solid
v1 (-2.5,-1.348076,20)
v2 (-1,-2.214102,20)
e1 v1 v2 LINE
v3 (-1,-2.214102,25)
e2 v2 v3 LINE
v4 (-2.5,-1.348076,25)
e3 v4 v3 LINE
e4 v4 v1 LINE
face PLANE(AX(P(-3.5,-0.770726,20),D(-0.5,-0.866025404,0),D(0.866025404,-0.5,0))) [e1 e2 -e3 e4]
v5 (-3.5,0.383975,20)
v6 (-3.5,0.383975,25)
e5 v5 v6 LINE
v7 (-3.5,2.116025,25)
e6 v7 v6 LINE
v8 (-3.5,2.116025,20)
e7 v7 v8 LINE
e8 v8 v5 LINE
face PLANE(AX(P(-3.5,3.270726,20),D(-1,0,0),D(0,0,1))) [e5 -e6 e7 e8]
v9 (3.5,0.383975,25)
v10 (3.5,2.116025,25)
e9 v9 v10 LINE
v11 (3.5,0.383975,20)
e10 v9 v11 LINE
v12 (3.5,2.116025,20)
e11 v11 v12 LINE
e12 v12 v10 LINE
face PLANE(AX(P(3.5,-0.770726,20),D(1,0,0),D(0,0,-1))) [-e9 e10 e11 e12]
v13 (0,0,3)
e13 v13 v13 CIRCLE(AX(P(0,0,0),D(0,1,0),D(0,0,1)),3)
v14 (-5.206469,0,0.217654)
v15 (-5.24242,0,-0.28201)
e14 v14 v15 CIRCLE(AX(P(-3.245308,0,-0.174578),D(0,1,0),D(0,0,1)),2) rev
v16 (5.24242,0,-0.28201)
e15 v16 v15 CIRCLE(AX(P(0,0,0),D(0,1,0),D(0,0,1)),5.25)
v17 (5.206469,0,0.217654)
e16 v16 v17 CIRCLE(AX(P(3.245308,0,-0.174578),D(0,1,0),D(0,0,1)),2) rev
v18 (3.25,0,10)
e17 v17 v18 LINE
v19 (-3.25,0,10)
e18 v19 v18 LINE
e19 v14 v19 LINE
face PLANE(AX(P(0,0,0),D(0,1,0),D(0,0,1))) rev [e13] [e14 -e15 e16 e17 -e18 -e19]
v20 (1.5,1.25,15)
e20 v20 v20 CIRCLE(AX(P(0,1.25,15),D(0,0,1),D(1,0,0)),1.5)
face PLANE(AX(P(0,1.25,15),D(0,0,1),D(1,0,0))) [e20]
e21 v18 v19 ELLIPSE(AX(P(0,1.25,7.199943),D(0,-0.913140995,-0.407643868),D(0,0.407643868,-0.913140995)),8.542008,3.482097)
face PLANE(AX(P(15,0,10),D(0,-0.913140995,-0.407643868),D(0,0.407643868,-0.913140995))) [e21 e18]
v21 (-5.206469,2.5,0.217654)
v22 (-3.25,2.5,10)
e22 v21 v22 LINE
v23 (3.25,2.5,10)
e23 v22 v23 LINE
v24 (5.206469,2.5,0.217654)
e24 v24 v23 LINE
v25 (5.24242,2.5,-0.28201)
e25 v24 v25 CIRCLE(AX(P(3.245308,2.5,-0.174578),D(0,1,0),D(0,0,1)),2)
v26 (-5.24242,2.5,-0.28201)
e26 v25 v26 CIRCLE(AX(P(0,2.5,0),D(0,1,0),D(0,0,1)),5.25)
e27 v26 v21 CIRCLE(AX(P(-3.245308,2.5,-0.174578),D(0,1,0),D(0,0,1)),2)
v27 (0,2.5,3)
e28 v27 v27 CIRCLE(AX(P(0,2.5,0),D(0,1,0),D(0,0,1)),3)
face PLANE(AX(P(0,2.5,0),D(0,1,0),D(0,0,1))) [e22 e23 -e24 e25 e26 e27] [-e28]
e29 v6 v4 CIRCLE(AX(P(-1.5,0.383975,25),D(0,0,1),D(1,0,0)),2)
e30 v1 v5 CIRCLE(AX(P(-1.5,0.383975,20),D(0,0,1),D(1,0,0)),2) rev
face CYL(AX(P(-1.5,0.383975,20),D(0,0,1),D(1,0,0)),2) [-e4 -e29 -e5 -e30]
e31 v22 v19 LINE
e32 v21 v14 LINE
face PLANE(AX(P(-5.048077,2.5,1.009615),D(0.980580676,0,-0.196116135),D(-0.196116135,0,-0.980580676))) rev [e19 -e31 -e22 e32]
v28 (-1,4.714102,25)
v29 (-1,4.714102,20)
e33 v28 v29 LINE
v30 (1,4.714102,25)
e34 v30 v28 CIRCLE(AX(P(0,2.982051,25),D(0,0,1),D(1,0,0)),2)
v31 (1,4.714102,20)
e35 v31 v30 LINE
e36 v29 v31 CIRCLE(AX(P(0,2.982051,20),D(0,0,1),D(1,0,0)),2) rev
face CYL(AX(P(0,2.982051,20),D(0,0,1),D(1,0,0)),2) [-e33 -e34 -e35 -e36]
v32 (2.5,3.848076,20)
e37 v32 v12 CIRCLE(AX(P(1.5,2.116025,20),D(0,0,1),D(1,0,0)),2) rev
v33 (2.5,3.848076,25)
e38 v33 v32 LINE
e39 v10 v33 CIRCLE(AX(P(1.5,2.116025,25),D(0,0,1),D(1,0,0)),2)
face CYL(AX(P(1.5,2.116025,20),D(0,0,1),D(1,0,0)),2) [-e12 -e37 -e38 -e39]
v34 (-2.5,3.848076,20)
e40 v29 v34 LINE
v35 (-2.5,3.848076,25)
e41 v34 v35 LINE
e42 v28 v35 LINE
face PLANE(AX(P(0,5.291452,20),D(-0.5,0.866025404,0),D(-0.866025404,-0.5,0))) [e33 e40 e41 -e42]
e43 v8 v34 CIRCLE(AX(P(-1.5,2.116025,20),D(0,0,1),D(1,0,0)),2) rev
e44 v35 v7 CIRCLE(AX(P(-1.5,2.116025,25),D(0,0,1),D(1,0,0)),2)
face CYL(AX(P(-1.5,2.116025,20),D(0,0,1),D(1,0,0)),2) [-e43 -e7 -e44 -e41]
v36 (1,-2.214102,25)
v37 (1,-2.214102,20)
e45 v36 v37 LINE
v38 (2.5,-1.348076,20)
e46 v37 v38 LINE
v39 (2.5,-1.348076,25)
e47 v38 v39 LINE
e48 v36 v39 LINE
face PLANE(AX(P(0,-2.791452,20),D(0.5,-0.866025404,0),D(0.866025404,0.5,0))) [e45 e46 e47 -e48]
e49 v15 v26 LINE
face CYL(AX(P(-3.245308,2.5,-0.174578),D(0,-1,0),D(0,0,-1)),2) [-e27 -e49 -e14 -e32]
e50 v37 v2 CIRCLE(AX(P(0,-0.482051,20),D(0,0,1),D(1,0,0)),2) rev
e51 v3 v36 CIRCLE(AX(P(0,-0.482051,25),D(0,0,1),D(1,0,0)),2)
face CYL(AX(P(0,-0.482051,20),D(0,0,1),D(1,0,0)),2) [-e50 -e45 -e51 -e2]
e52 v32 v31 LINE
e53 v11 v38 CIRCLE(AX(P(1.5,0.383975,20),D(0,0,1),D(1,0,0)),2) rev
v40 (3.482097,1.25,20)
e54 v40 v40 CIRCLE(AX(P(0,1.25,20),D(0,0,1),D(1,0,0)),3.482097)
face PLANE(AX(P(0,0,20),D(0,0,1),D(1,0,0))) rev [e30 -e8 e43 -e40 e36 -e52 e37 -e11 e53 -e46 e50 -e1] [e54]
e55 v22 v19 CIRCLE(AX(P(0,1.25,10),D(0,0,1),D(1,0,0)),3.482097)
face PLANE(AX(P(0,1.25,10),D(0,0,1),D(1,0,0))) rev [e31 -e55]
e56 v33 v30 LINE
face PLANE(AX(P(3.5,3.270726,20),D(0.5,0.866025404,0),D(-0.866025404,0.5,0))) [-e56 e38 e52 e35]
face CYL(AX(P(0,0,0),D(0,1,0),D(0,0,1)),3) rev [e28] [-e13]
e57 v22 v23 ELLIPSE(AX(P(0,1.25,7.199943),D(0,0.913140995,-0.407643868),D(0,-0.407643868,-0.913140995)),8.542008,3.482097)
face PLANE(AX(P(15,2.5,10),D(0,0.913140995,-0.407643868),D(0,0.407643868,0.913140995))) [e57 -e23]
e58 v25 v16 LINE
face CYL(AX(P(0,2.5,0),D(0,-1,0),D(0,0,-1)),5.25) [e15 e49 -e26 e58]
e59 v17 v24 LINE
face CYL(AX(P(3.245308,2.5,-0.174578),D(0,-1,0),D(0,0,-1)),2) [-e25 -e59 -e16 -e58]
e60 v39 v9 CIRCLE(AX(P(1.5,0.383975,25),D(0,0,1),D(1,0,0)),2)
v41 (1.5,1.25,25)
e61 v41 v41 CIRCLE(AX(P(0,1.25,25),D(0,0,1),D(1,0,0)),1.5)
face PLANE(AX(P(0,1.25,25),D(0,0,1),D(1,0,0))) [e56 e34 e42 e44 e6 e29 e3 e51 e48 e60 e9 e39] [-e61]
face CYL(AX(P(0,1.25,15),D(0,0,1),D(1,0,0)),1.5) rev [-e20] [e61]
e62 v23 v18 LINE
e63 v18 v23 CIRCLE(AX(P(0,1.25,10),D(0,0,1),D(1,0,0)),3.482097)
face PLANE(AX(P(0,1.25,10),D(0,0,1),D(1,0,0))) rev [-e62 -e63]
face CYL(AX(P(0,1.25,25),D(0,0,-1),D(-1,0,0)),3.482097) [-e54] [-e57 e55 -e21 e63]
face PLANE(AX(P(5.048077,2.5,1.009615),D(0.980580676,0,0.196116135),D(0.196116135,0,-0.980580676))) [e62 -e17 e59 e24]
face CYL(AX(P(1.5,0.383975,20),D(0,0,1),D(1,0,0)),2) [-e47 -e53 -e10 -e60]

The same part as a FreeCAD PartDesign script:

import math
import FreeCAD as App
import Part
import Sketcher
from FreeCAD import Vector
Q = App.Units.Quantity


def edges_at(feature, points):
    """Names of the edges that pass closest to the given points."""
    edges = feature.Shape.Edges
    near = lambda p: min(range(len(edges)), key=lambda i: edges[i].distToShape(Part.Vertex(*p))[0])
    return sorted({f"Edge{near(p) + 1}" for p in points})

doc = App.newDocument("Part")
body = doc.addObject("PartDesign::Body", "Body")

sketch1 = body.newObject("Sketcher::SketchObject", "Sketch")
sketch1.AttachmentSupport = (doc.getObject("XZ_Plane"), [""])
sketch1.MapMode = "FlatFace"
sketch1.addGeometry(Part.ArcOfCircle(Part.Circle(Vector(0, 0, 0), Vector(0, 0, 1), 5), math.radians(180), math.radians(360)), False)
sketch1.addGeometry(Part.LineSegment(Vector(-5, 0, 0), Vector(-3, 10, 0)), False)
sketch1.addGeometry(Part.LineSegment(Vector(-3, 10, 0), Vector(3, 10, 0)), False)
sketch1.addGeometry(Part.LineSegment(Vector(3, 10, 0), Vector(5, 0, 0)), False)
sketch1.addConstraint(Sketcher.Constraint("Coincident", 0, 1, 1, 1))
sketch1.addConstraint(Sketcher.Constraint("Coincident", 1, 2, 2, 1))
sketch1.addConstraint(Sketcher.Constraint("Coincident", 2, 2, 3, 1))
sketch1.addConstraint(Sketcher.Constraint("Coincident", 3, 2, 0, 2))
sketch1.addConstraint(Sketcher.Constraint("Horizontal", 2))
sketch1.addConstraint(Sketcher.Constraint("Coincident", 0, 3, -1, 1))
sketch1.addConstraint(Sketcher.Constraint("PointOnObject", 0, 1, -1))
sketch1.addConstraint(Sketcher.Constraint("PointOnObject", 3, 2, -1))
sketch1.addConstraint(Sketcher.Constraint("Equal", 1, 3))
sketch1.addConstraint(Sketcher.Constraint("Radius", 0, Q("5.25 mm")))
sketch1.addConstraint(Sketcher.Constraint("DistanceX", 2, 1, 2, 2, Q("6.5 mm")))
sketch1.addConstraint(Sketcher.Constraint("DistanceY", -1, 1, 1, 2, Q("10 mm")))
pad1 = body.newObject("PartDesign::Pad", "Pad")
pad1.Profile = sketch1
pad1.Length = 2.5
pad1.Reversed = True

sketch2 = body.newObject("Sketcher::SketchObject", "Sketch001")
sketch2.AttachmentSupport = (doc.getObject("XZ_Plane"), [""])
sketch2.MapMode = "FlatFace"
sketch2.AttachmentOffset = App.Placement(Vector(0, 0, -2.5), App.Rotation())
sketch2.addGeometry(Part.Circle(Vector(0, 0, 0), Vector(0, 0, 1), 3), False)
sketch2.addConstraint(Sketcher.Constraint("Coincident", 0, 3, -1, 1))
sketch2.addConstraint(Sketcher.Constraint("Diameter", 0, Q("6 mm")))
pocket1 = body.newObject("PartDesign::Pocket", "Pocket")
pocket1.Profile = sketch2
pocket1.Length = 2.5
pocket1.Reversed = True
doc.recompute()

fillet = body.newObject("PartDesign::Fillet", "Fillet")
fillet.Base = (pocket1, edges_at(pocket1, [(-5.25, 1.25, 0), (5.25, 1.25, 0)]))
fillet.Radius = 2

sketch3 = body.newObject("Sketcher::SketchObject", "Sketch002")
sketch3.AttachmentSupport = (doc.getObject("XY_Plane"), [""])
sketch3.MapMode = "FlatFace"
sketch3.AttachmentOffset = App.Placement(Vector(0, 0, 10), App.Rotation())
sketch3.addGeometry(Part.Circle(Vector(0, 1.2, 0), Vector(0, 0, 1), 3.5), False)
sketch3.addConstraint(Sketcher.Constraint("PointOnObject", 0, 3, -2))
sketch3.addConstraint(Sketcher.Constraint("DistanceY", -1, 1, 0, 3, Q("1.25 mm")))
sketch3.addConstraint(Sketcher.Constraint("Diameter", 0, Q("6.964194 mm")))
pad2 = body.newObject("PartDesign::Pad", "Pad001")
pad2.Profile = sketch3
pad2.Length = 15

sketch4 = body.newObject("Sketcher::SketchObject", "Sketch003")
sketch4.AttachmentSupport = (doc.getObject("YZ_Plane"), [""])
sketch4.MapMode = "FlatFace"
sketch4.addGeometry(Part.LineSegment(Vector(4.7, 15, 0), Vector(2.5, 10, 0)), False)
sketch4.addGeometry(Part.LineSegment(Vector(2.5, 10, 0), Vector(4.7, 10, 0)), False)
sketch4.addGeometry(Part.LineSegment(Vector(4.7, 10, 0), Vector(4.7, 15, 0)), False)
sketch4.addGeometry(Part.LineSegment(Vector(0, 10, 0), Vector(-2.2, 15, 0)), False)
sketch4.addGeometry(Part.LineSegment(Vector(-2.2, 15, 0), Vector(-2.2, 10, 0)), False)
sketch4.addGeometry(Part.LineSegment(Vector(-2.2, 10, 0), Vector(0, 10, 0)), False)
sketch4.addConstraint(Sketcher.Constraint("Coincident", 0, 2, 1, 1))
sketch4.addConstraint(Sketcher.Constraint("Coincident", 1, 2, 2, 1))
sketch4.addConstraint(Sketcher.Constraint("Coincident", 2, 2, 0, 1))
sketch4.addConstraint(Sketcher.Constraint("Coincident", 3, 2, 4, 1))
sketch4.addConstraint(Sketcher.Constraint("Coincident", 4, 2, 5, 1))
sketch4.addConstraint(Sketcher.Constraint("Coincident", 5, 2, 3, 1))
sketch4.addConstraint(Sketcher.Constraint("Horizontal", 1))
sketch4.addConstraint(Sketcher.Constraint("Vertical", 2))
sketch4.addConstraint(Sketcher.Constraint("Vertical", 4))
sketch4.addConstraint(Sketcher.Constraint("Horizontal", 5))
sketch4.addConstraint(Sketcher.Constraint("PointOnObject", 5, 2, -2))
sketch4.addConstraint(Sketcher.Constraint("Horizontal", 2, 2, 3, 2))
sketch4.addConstraint(Sketcher.Constraint("Horizontal", 1, 2, 4, 2))
sketch4.addConstraint(Sketcher.Constraint("Equal", 1, 5))
sketch4.addConstraint(Sketcher.Constraint("DistanceY", 2, 1, 2, 2, Q("5 mm")))
sketch4.addConstraint(Sketcher.Constraint("DistanceY", -1, 1, 0, 2, Q("10 mm")))
sketch4.addConstraint(Sketcher.Constraint("DistanceX", -1, 1, 0, 2, Q("2.5 mm")))
sketch4.addConstraint(Sketcher.Constraint("DistanceX", 1, 1, 1, 2, Q("2.232097 mm")))
pocket2 = body.newObject("PartDesign::Pocket", "Pocket001")
pocket2.Profile = sketch4
pocket2.Type = "ThroughAll"
pocket2.Midplane = True

sketch5 = body.newObject("Sketcher::SketchObject", "Sketch004")
sketch5.AttachmentSupport = (doc.getObject("XY_Plane"), [""])
sketch5.MapMode = "FlatFace"
sketch5.AttachmentOffset = App.Placement(Vector(0, 0, 25), App.Rotation())
sketch5.addGeometry(Part.Circle(Vector(0, 1.2, 0), Vector(0, 0, 1), 1.5), False)
sketch5.addConstraint(Sketcher.Constraint("PointOnObject", 0, 3, -2))
sketch5.addConstraint(Sketcher.Constraint("Diameter", 0, Q("3 mm")))
sketch5.addConstraint(Sketcher.Constraint("DistanceY", -1, 1, 0, 3, Q("1.25 mm")))
pocket3 = body.newObject("PartDesign::Pocket", "Pocket002")
pocket3.Profile = sketch5
pocket3.Length = 10

sketch6 = body.newObject("Sketcher::SketchObject", "Sketch005")
sketch6.AttachmentSupport = (doc.getObject("XY_Plane"), [""])
sketch6.MapMode = "FlatFace"
sketch6.AttachmentOffset = App.Placement(Vector(0, 0, 25), App.Rotation())
sketch6.addGeometry(Part.LineSegment(Vector(0, 5.3, 0), Vector(-3.5, 3.3, 0)), False)
sketch6.addGeometry(Part.LineSegment(Vector(-3.5, 3.3, 0), Vector(-3.5, -0.8, 0)), False)
sketch6.addGeometry(Part.LineSegment(Vector(-3.5, -0.8, 0), Vector(0, -2.8, 0)), False)
sketch6.addGeometry(Part.LineSegment(Vector(0, -2.8, 0), Vector(3.5, -0.8, 0)), False)
sketch6.addGeometry(Part.LineSegment(Vector(3.5, -0.8, 0), Vector(3.5, 3.3, 0)), False)
sketch6.addGeometry(Part.LineSegment(Vector(3.5, 3.3, 0), Vector(0, 5.3, 0)), False)
sketch6.addConstraint(Sketcher.Constraint("Coincident", 0, 2, 1, 1))
sketch6.addConstraint(Sketcher.Constraint("Coincident", 1, 2, 2, 1))
sketch6.addConstraint(Sketcher.Constraint("Coincident", 2, 2, 3, 1))
sketch6.addConstraint(Sketcher.Constraint("Coincident", 3, 2, 4, 1))
sketch6.addConstraint(Sketcher.Constraint("Coincident", 4, 2, 5, 1))
sketch6.addConstraint(Sketcher.Constraint("Coincident", 5, 2, 0, 1))
sketch6.addConstraint(Sketcher.Constraint("Vertical", 1))
sketch6.addConstraint(Sketcher.Constraint("Vertical", 4))
sketch6.addConstraint(Sketcher.Constraint("Symmetric", 1, 2, 3, 2, -2))
sketch6.addConstraint(Sketcher.Constraint("PointOnObject", 2, 2, -2))
sketch6.addConstraint(Sketcher.Constraint("PointOnObject", 5, 2, -2))
sketch6.addConstraint(Sketcher.Constraint("Parallel", 0, 3))
sketch6.addConstraint(Sketcher.Constraint("Parallel", 2, 5))
sketch6.addConstraint(Sketcher.Constraint("Angle", 0, Q("-150 deg")))
sketch6.addConstraint(Sketcher.Constraint("DistanceX", 1, 2, 3, 2, Q("7 mm")))
sketch6.addConstraint(Sketcher.Constraint("DistanceY", 1, 2, 1, 1, Q("4.041452 mm")))
sketch6.addConstraint(Sketcher.Constraint("DistanceY", 2, 2, -1, 1, Q("2.791452 mm")))
pad3 = body.newObject("PartDesign::Pad", "Pad002")
pad3.Profile = sketch6
pad3.Length = 5
pad3.Reversed = True

sketch7 = body.newObject("Sketcher::SketchObject", "Sketch006")
sketch7.AttachmentSupport = (doc.getObject("XY_Plane"), [""])
sketch7.MapMode = "FlatFace"
sketch7.AttachmentOffset = App.Placement(Vector(0, 0, 25), App.Rotation())
sketch7.addGeometry(Part.Circle(Vector(0, 1.2, 0), Vector(0, 0, 1), 1.5), False)
sketch7.addConstraint(Sketcher.Constraint("PointOnObject", 0, 3, -2))
sketch7.addConstraint(Sketcher.Constraint("Diameter", 0, Q("3 mm")))
sketch7.addConstraint(Sketcher.Constraint("DistanceY", -1, 1, 0, 3, Q("1.25 mm")))
pocket4 = body.newObject("PartDesign::Pocket", "Pocket003")
pocket4.Profile = sketch7
pocket4.Length = 5
doc.recompute()

fillet2 = body.newObject("PartDesign::Fillet", "Fillet001")
fillet2.Base = (pocket4, edges_at(pocket4, [
    (0, 5.291, 22.5),
    (3.5, 3.271, 22.5),
    (3.5, -0.771, 22.5),
    (0, -2.791, 22.5),
    (-3.5, -0.771, 22.5),
    (-3.5, 3.271, 22.5),
]))
fillet2.Radius = 2

doc.recompute()
